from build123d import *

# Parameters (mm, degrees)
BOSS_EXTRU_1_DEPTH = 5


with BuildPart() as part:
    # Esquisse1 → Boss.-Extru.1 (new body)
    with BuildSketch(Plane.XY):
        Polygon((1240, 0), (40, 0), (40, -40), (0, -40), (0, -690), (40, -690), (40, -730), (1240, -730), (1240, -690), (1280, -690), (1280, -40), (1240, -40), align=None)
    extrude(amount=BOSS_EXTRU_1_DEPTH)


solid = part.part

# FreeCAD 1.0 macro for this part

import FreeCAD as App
import Part
import Sketcher

V = App.Vector
Q = App.Units.Quantity

doc = App.newDocument("Part")
params = doc.addObject("Spreadsheet::Sheet", "Params")
for row, (alias, value) in enumerate([
    ("sketch1_width", "1200 mm"),
    ("sketch1_width2", "40 mm"),
    ("sketch1_height", "650 mm"),
    ("pad1_length", "5 mm"),
], start=1):
    params.set(f"A{row}", alias)
    params.set(f"B{row}", "=" + value)
    params.setAlias(f"B{row}", alias)

body = doc.addObject("PartDesign::Body", "Body")

# Sketch on XY plane
sketch1 = body.newObject("Sketcher::SketchObject", "Sketch")
sketch1.AttachmentSupport = (doc.getObject("XY_Plane"), [""])
sketch1.MapMode = "FlatFace"
sketch1.addGeometry(Part.LineSegment(V(1240, 0, 0), V(40, 0, 0)), False)
sketch1.addGeometry(Part.LineSegment(V(40, 0, 0), V(40, -40, 0)), False)
sketch1.addGeometry(Part.LineSegment(V(40, -40, 0), V(0, -40, 0)), False)
sketch1.addGeometry(Part.LineSegment(V(0, -40, 0), V(0, -690, 0)), False)
sketch1.addGeometry(Part.LineSegment(V(0, -690, 0), V(40, -690, 0)), False)
sketch1.addGeometry(Part.LineSegment(V(40, -690, 0), V(40, -730, 0)), False)
sketch1.addGeometry(Part.LineSegment(V(40, -730, 0), V(1240, -730, 0)), False)
sketch1.addGeometry(Part.LineSegment(V(1240, -730, 0), V(1240, -690, 0)), False)
sketch1.addGeometry(Part.LineSegment(V(1240, -690, 0), V(1280, -690, 0)), False)
sketch1.addGeometry(Part.LineSegment(V(1280, -690, 0), V(1280, -40, 0)), False)
sketch1.addGeometry(Part.LineSegment(V(1280, -40, 0), V(1240, -40, 0)), False)
sketch1.addGeometry(Part.LineSegment(V(1240, -40, 0), V(1240, 0, 0)), False)
sketch1.addConstraint(Sketcher.Constraint("Coincident", 0, 2, 1, 1))
sketch1.addConstraint(Sketcher.Constraint("Coincident", 1, 2, 2, 1))
sketch1.addConstraint(Sketcher.Constraint("Coincident", 2, 2, 3, 1))
sketch1.addConstraint(Sketcher.Constraint("Coincident", 3, 2, 4, 1))
sketch1.addConstraint(Sketcher.Constraint("Coincident", 4, 2, 5, 1))
sketch1.addConstraint(Sketcher.Constraint("Coincident", 5, 2, 6, 1))
sketch1.addConstraint(Sketcher.Constraint("Coincident", 6, 2, 7, 1))
sketch1.addConstraint(Sketcher.Constraint("Coincident", 7, 2, 8, 1))
sketch1.addConstraint(Sketcher.Constraint("Coincident", 8, 2, 9, 1))
sketch1.addConstraint(Sketcher.Constraint("Coincident", 9, 2, 10, 1))
sketch1.addConstraint(Sketcher.Constraint("Coincident", 10, 2, 11, 1))
sketch1.addConstraint(Sketcher.Constraint("Coincident", 11, 2, 0, 1))
sketch1.addConstraint(Sketcher.Constraint("Horizontal", 0))
sketch1.addConstraint(Sketcher.Constraint("Vertical", 1))
sketch1.addConstraint(Sketcher.Constraint("Horizontal", 2))
sketch1.addConstraint(Sketcher.Constraint("Vertical", 3))
sketch1.addConstraint(Sketcher.Constraint("Horizontal", 4))
sketch1.addConstraint(Sketcher.Constraint("Vertical", 5))
sketch1.addConstraint(Sketcher.Constraint("Horizontal", 6))
sketch1.addConstraint(Sketcher.Constraint("Vertical", 7))
sketch1.addConstraint(Sketcher.Constraint("Horizontal", 8))
sketch1.addConstraint(Sketcher.Constraint("Vertical", 9))
sketch1.addConstraint(Sketcher.Constraint("Horizontal", 10))
sketch1.addConstraint(Sketcher.Constraint("Vertical", 11))
sketch1.addConstraint(Sketcher.Constraint("PointOnObject", 0, 2, -1))
sketch1.addConstraint(Sketcher.Constraint("PointOnObject", 2, 2, -2))
sketch1.addConstraint(Sketcher.Constraint("Horizontal", 4, 2, 7, 2))
sketch1.addConstraint(Sketcher.Constraint("Horizontal", 2, 2, 9, 2))
sketch1.addConstraint(Sketcher.Constraint("Vertical", 1, 2, 4, 2))
sketch1.addConstraint(Sketcher.Constraint("Vertical", 7, 2, 10, 2))
sketch1.addConstraint(Sketcher.Constraint("Equal", 4, 8))
sketch1.addConstraint(Sketcher.Constraint("Equal", 10, 1))
sketch1.addConstraint(Sketcher.Constraint("Equal", 1, 5))
sketch1.addConstraint(Sketcher.Constraint("DistanceX", 0, 2, 0, 1, Q("1200 mm")))
sketch1.addConstraint(Sketcher.Constraint("DistanceX", 2, 2, 2, 1, Q("40 mm")))
sketch1.addConstraint(Sketcher.Constraint("DistanceY", 3, 2, 3, 1, Q("650 mm")))
sketch1.setExpression("Constraints[33]", "Params.sketch1_width")
sketch1.setExpression("Constraints[34]", "Params.sketch1_width2")
sketch1.setExpression("Constraints[35]", "Params.sketch1_height")
pad1 = body.newObject("PartDesign::Pad", "Pad")
pad1.Profile = sketch1
pad1.setExpression("Length", "Params.pad1_length")

doc.recompute()
